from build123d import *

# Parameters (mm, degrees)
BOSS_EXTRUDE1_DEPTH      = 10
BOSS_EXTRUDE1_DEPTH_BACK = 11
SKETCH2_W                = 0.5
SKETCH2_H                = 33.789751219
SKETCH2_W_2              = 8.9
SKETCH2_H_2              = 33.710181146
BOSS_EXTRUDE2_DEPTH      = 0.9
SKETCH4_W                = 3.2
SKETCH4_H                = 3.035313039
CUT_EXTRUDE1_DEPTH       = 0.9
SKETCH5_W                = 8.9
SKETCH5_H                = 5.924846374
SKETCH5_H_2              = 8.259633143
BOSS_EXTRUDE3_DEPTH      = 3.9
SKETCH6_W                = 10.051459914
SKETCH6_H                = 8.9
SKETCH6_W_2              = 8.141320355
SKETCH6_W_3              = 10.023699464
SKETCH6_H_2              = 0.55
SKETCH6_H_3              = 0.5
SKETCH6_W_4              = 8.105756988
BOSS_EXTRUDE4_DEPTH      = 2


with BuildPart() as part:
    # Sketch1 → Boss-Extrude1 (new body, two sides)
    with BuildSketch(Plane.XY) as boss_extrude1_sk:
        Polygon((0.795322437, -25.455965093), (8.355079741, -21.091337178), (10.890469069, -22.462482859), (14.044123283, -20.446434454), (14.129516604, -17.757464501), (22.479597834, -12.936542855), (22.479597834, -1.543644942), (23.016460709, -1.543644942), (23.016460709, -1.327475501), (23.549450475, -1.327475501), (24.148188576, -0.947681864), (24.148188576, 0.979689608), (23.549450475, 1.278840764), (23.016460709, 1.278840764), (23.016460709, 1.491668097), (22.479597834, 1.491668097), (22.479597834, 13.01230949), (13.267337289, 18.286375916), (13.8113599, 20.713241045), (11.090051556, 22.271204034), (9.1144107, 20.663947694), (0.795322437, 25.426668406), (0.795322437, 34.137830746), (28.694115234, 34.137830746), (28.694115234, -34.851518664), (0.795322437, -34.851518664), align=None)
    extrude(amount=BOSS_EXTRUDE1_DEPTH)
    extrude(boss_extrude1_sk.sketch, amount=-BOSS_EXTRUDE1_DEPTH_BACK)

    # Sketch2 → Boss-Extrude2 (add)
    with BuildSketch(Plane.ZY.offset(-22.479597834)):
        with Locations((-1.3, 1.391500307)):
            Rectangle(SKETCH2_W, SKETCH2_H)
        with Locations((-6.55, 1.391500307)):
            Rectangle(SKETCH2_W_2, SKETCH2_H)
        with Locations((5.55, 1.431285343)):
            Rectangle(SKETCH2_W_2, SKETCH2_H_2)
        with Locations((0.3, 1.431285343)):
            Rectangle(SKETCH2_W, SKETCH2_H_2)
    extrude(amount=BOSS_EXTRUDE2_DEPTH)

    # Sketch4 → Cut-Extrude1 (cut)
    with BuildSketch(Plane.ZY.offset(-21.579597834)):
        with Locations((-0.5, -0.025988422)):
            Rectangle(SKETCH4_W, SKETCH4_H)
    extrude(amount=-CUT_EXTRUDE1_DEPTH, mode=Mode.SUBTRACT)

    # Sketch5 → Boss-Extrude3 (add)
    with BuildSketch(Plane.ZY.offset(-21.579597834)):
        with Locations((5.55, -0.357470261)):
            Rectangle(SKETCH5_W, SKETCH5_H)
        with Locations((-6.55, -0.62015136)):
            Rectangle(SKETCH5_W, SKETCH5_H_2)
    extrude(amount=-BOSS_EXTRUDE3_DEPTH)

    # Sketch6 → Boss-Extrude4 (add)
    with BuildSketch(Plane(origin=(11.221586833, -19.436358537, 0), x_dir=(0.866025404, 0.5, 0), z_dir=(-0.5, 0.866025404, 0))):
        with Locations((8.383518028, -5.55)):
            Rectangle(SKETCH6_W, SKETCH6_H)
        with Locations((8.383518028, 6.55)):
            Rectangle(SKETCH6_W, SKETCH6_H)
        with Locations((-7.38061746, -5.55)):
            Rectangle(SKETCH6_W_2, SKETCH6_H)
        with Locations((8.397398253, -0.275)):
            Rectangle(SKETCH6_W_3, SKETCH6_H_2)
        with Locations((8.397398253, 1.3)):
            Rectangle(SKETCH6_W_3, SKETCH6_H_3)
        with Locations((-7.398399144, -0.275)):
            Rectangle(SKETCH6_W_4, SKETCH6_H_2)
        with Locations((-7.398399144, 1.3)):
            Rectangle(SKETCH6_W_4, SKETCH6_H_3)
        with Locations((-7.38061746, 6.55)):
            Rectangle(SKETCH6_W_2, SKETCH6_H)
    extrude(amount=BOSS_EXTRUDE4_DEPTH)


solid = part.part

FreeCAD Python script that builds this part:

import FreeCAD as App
import Part
import Sketcher
Q = App.Units.Quantity


def add_polygon(sketch, points):
    """Adds a closed chain of lines whose ends are joined by coincident constraints."""
    first, n = sketch.GeometryCount, len(points)
    for a, b in zip(points, points[1:] + points[:1]):
        sketch.addGeometry(Part.LineSegment(App.Vector(*a, 0), App.Vector(*b, 0)), False)
    for i in range(n):
        sketch.addConstraint(Sketcher.Constraint("Coincident", first + i, 2, first + (i + 1) % n, 1))

doc = App.newDocument("Part")
params = doc.addObject("Spreadsheet::Sheet", "Params")
for row, (alias, value) in enumerate([
    ("pad1_length", "10 mm"),
    ("pad1_length2", "11 mm"),
    ("sketch2_height", "0.5 mm"),
    ("sketch2_height2", "8.9 mm"),
    ("pad2_length", "0.9 mm"),
    ("sketch3_height", "3.2 mm"),
    ("pocket1_length", "0.9 mm"),
    ("sketch4_height", "8.9 mm"),
    ("pad3_length", "3.9 mm"),
    ("sketch5_height", "8.9 mm"),
    ("sketch5_height2", "0.5 mm"),
    ("sketch5_height3", "0.55 mm"),
    ("pad4_length", "2 mm"),
], start=1):
    params.set(f"A{row}", alias)
    params.set(f"B{row}", "=" + value)
    params.setAlias(f"B{row}", alias)

body = doc.addObject("PartDesign::Body", "Body")

# Sketch on XY plane
sketch1 = doc.addObject("Sketcher::SketchObject", "Sketch")
body.addObject(sketch1)
sketch1.AttachmentSupport = (doc.XY_Plane, [""])
sketch1.MapMode = "FlatFace"
add_polygon(sketch1, [(8.35508, -21.091337), (0.795322, -25.455965), (0.795322, -34.851519), (28.694115, -34.851519), (28.694115, 34.137831), (0.795322, 34.137831), (0.795322, 25.426668), (9.114411, 20.663948), (11.090052, 22.271204), (13.81136, 20.713241), (13.267337, 18.286376), (22.479598, 13.012309), (22.479598, 1.491668), (23.016461, 1.491668), (23.016461, 1.278841), (23.54945, 1.278841), (24.148189, 0.97969), (24.148189, -0.947682), (23.54945, -1.327476), (23.016461, -1.327476), (23.016461, -1.543645), (22.479598, -1.543645), (22.479598, -12.936543), (14.129517, -17.757465), (14.044123, -20.446434), (10.890469, -22.462483)])  # lines 0-25
sketch1.addConstraint(Sketcher.Constraint("Vertical", 1))
sketch1.addConstraint(Sketcher.Constraint("Horizontal", 2))
sketch1.addConstraint(Sketcher.Constraint("Vertical", 3))
sketch1.addConstraint(Sketcher.Constraint("Horizontal", 4))
sketch1.addConstraint(Sketcher.Constraint("Vertical", 5))
sketch1.addConstraint(Sketcher.Constraint("Vertical", 11))
sketch1.addConstraint(Sketcher.Constraint("Horizontal", 12))
sketch1.addConstraint(Sketcher.Constraint("Vertical", 13))
sketch1.addConstraint(Sketcher.Constraint("Horizontal", 14))
sketch1.addConstraint(Sketcher.Constraint("Vertical", 16))
sketch1.addConstraint(Sketcher.Constraint("Horizontal", 18))
sketch1.addConstraint(Sketcher.Constraint("Vertical", 19))
sketch1.addConstraint(Sketcher.Constraint("Horizontal", 20))
sketch1.addConstraint(Sketcher.Constraint("Vertical", 21))
sketch1.addConstraint(Sketcher.Constraint("Parallel", 6, 8))
sketch1.addConstraint(Sketcher.Constraint("Parallel", 8, 10))
sketch1.addConstraint(Sketcher.Constraint("Parallel", 0, 22))
sketch1.addConstraint(Sketcher.Constraint("Vertical", 1, 2, 4, 2))
sketch1.addConstraint(Sketcher.Constraint("Vertical", 14, 2, 17, 2))
sketch1.addConstraint(Sketcher.Constraint("Vertical", 13, 2, 18, 2))
sketch1.addConstraint(Sketcher.Constraint("Vertical", 11, 2, 20, 2))
sketch1.addConstraint(Sketcher.Constraint("Angle", 0, Q("-150 deg")))
sketch1.addConstraint(Sketcher.Constraint("Distance", 25, 2.882402))
sketch1.addConstraint(Sketcher.Constraint("DistanceX", 14, 1, 14, 2, 0.53299))
sketch1.addConstraint(Sketcher.Constraint("DistanceY", 3, 1, 3, 2, 68.989349))
sketch1.addConstraint(Sketcher.Constraint("DistanceY", 11, 2, 11, 1, 11.520641))
sketch1.addConstraint(Sketcher.Constraint("DistanceY", 16, 2, 16, 1, 1.927371))
sketch1.addConstraint(Sketcher.Constraint("DistanceY", 19, 2, 19, 1, 0.216169))
sketch1.addConstraint(Sketcher.Constraint("DistanceX", 8, 2, 12, 2, 9.205101))
sketch1.addConstraint(Sketcher.Constraint("DistanceY", 13, 2, 8, 2, 19.4344))
sketch1.addConstraint(Sketcher.Constraint("DistanceY", 0, 2, 22, 2, 7.698501))
sketch1.addConstraint(Sketcher.Constraint("DistanceX", 0, 2, 23, 2, 13.248801))
sketch1.addConstraint(Sketcher.Constraint("Distance", 24, 3.742992))
sketch1.addConstraint(Sketcher.Constraint("DistanceX", 2, 1, 2, 2, 27.898793))
sketch1.addConstraint(Sketcher.Constraint("DistanceX", 12, 1, 12, 2, 0.536863))
sketch1.addConstraint(Sketcher.Constraint("DistanceY", 1, 2, 1, 1, 9.395554))
sketch1.addConstraint(Sketcher.Constraint("DistanceY", 5, 2, 5, 1, 8.711162))
sketch1.addConstraint(Sketcher.Constraint("DistanceY", 13, 2, 13, 1, 0.212827))
sketch1.addConstraint(Sketcher.Constraint("DistanceY", 21, 2, 21, 1, 11.392898))
sketch1.addConstraint(Sketcher.Constraint("DistanceY", 1, 2, -1, 1, 34.851519))
sketch1.addConstraint(Sketcher.Constraint("DistanceX", -1, 1, 6, 2, 9.114411))
sketch1.addConstraint(Sketcher.Constraint("DistanceX", -1, 1, 7, 2, 11.090052))
sketch1.addConstraint(Sketcher.Constraint("DistanceX", -1, 1, 8, 2, 13.81136))
sketch1.addConstraint(Sketcher.Constraint("DistanceY", -1, 1, 8, 2, 20.713241))
sketch1.addConstraint(Sketcher.Constraint("DistanceX", -1, 1, 15, 2, 24.148189))
sketch1.addConstraint(Sketcher.Constraint("DistanceY", -1, 1, 15, 2, 0.97969))
sketch1.addConstraint(Sketcher.Constraint("DistanceX", -1, 1, 24, 2, 10.890469))
sketch1.addConstraint(Sketcher.Constraint("DistanceX", -1, 1, 25, 2, 8.35508))
sketch1.addConstraint(Sketcher.Constraint("DistanceX", 5, 2, 6, 2, 8.319088))
sketch1.addConstraint(Sketcher.Constraint("DistanceY", 6, 2, 5, 2, 4.762721))
sketch1.addConstraint(Sketcher.Constraint("DistanceY", 9, 2, 7, 2, 3.984828))
sketch1.addConstraint(Sketcher.Constraint("DistanceY", 21, 2, 16, 2, 11.988861))
pad1 = doc.addObject("PartDesign::Pad", "Pad")
body.addObject(pad1)
pad1.Profile = sketch1
pad1.Type = "TwoLengths"
pad1.setExpression("Length", "Params.pad1_length")
pad1.setExpression("Length2", "Params.pad1_length2")

# Sketch on YZ plane
sketch2 = doc.addObject("Sketcher::SketchObject", "Sketch001")
body.addObject(sketch2)
sketch2.AttachmentSupport = (doc.YZ_Plane, [""])
sketch2.MapMode = "FlatFace"
sketch2.AttachmentOffset = App.Placement(App.Vector(0, 0, 22.479598), App.Rotation())
add_polygon(sketch2, [(18.286376, -1.55), (-15.503375, -1.55), (-15.503375, -1.05), (18.286376, -1.05)])  # lines 0-3
add_polygon(sketch2, [(18.286376, -11), (-15.503375, -11), (-15.503375, -2.1), (18.286376, -2.1)])  # lines 4-7
add_polygon(sketch2, [(18.286376, 1.1), (-15.423805, 1.1), (-15.423805, 10), (18.286376, 10)])  # lines 8-11
add_polygon(sketch2, [(18.286376, 0.05), (-15.423805, 0.05), (-15.423805, 0.55), (18.286376, 0.55)])  # lines 12-15
sketch2.addConstraint(Sketcher.Constraint("Horizontal", 0))
sketch2.addConstraint(Sketcher.Constraint("Vertical", 1))
sketch2.addConstraint(Sketcher.Constraint("Horizontal", 2))
sketch2.addConstraint(Sketcher.Constraint("Vertical", 3))
sketch2.addConstraint(Sketcher.Constraint("Horizontal", 4))
sketch2.addConstraint(Sketcher.Constraint("Vertical", 5))
sketch2.addConstraint(Sketcher.Constraint("Horizontal", 6))
sketch2.addConstraint(Sketcher.Constraint("Vertical", 7))
sketch2.addConstraint(Sketcher.Constraint("Horizontal", 8))
sketch2.addConstraint(Sketcher.Constraint("Vertical", 9))
sketch2.addConstraint(Sketcher.Constraint("Horizontal", 10))
sketch2.addConstraint(Sketcher.Constraint("Vertical", 11))
sketch2.addConstraint(Sketcher.Constraint("Horizontal", 12))
sketch2.addConstraint(Sketcher.Constraint("Vertical", 13))
sketch2.addConstraint(Sketcher.Constraint("Horizontal", 14))
sketch2.addConstraint(Sketcher.Constraint("Vertical", 15))
sketch2.addConstraint(Sketcher.Constraint("Vertical", 1, 2, 4, 2))
sketch2.addConstraint(Sketcher.Constraint("Vertical", 3, 2, 6, 2))
sketch2.addConstraint(Sketcher.Constraint("Vertical", 7, 2, 10, 2))
sketch2.addConstraint(Sketcher.Constraint("Vertical", 9, 2, 12, 2))
sketch2.addConstraint(Sketcher.Constraint("Vertical", 11, 2, 14, 2))
sketch2.addConstraint(Sketcher.Constraint("Equal", 7, 9))
sketch2.addConstraint(Sketcher.Constraint("Equal", 3, 13))
sketch2.addConstraint(Sketcher.Constraint("DistanceY", 1, 1, 1, 2, 0.5))
sketch2.addConstraint(Sketcher.Constraint("DistanceY", 5, 1, 5, 2, 8.9))
sketch2.addConstraint(Sketcher.Constraint("DistanceY", 4, 2, -1, 1, 11.0))
sketch2.addConstraint(Sketcher.Constraint("DistanceY", -1, 1, 9, 2, 10.0))
sketch2.addConstraint(Sketcher.Constraint("DistanceY", 1, 2, 12, 2, 1.1))
sketch2.addConstraint(Sketcher.Constraint("DistanceY", 0, 2, -1, 1, 1.55))
sketch2.addConstraint(Sketcher.Constraint("DistanceX", 0, 2, 0, 1, 33.789751))
sketch2.addConstraint(Sketcher.Constraint("DistanceX", 8, 2, 8, 1, 33.710181))
sketch2.addConstraint(Sketcher.Constraint("DistanceX", 0, 2, -1, 1, 15.503375))
sketch2.setExpression("Constraints[39]", "Params.sketch2_height")
sketch2.setExpression("Constraints[40]", "Params.sketch2_height2")
pad2 = doc.addObject("PartDesign::Pad", "Pad001")
body.addObject(pad2)
pad2.Profile = sketch2
pad2.setExpression("Length", "Params.pad2_length")
pad2.Reversed = True

# Sketch on YZ plane
sketch3 = doc.addObject("Sketcher::SketchObject", "Sketch002")
body.addObject(sketch3)
sketch3.AttachmentSupport = (doc.YZ_Plane, [""])
sketch3.MapMode = "FlatFace"
sketch3.AttachmentOffset = App.Placement(App.Vector(0, 0, 21.579598), App.Rotation())
add_polygon(sketch3, [(1.491668, -2.1), (-1.543645, -2.1), (-1.543645, 1.1), (1.491668, 1.1)])  # lines 0-3
sketch3.addConstraint(Sketcher.Constraint("Horizontal", 0))
sketch3.addConstraint(Sketcher.Constraint("Vertical", 1))
sketch3.addConstraint(Sketcher.Constraint("Horizontal", 2))
sketch3.addConstraint(Sketcher.Constraint("Vertical", 3))
sketch3.addConstraint(Sketcher.Constraint("DistanceY", 1, 1, 1, 2, 3.2))
sketch3.addConstraint(Sketcher.Constraint("DistanceY", 0, 2, -1, 1, 2.1))
sketch3.addConstraint(Sketcher.Constraint("DistanceX", 0, 2, 0, 1, 3.035313))
sketch3.addConstraint(Sketcher.Constraint("DistanceX", -1, 1, 2, 2, 1.491668))
sketch3.setExpression("Constraints[8]", "Params.sketch3_height")
pocket1 = doc.addObject("PartDesign::Pocket", "Pocket")
body.addObject(pocket1)
pocket1.Profile = sketch3
pocket1.setExpression("Length", "Params.pocket1_length")
pocket1.Reversed = True

# Sketch on YZ plane
sketch4 = doc.addObject("Sketcher::SketchObject", "Sketch003")
body.addObject(sketch4)
sketch4.AttachmentSupport = (doc.YZ_Plane, [""])
sketch4.MapMode = "FlatFace"
sketch4.AttachmentOffset = App.Placement(App.Vector(0, 0, 21.579598), App.Rotation())
add_polygon(sketch4, [(2.604953, 1.1), (-3.319893, 1.1), (-3.319893, 10), (2.604953, 10)])  # lines 0-3
add_polygon(sketch4, [(3.509665, -11), (-4.749968, -11), (-4.749968, -2.1), (3.509665, -2.1)])  # lines 4-7
sketch4.addConstraint(Sketcher.Constraint("Horizontal", 0))
sketch4.addConstraint(Sketcher.Constraint("Vertical", 1))
sketch4.addConstraint(Sketcher.Constraint("Horizontal", 2))
sketch4.addConstraint(Sketcher.Constraint("Vertical", 3))
sketch4.addConstraint(Sketcher.Constraint("Horizontal", 4))
sketch4.addConstraint(Sketcher.Constraint("Vertical", 5))
sketch4.addConstraint(Sketcher.Constraint("Horizontal", 6))
sketch4.addConstraint(Sketcher.Constraint("Vertical", 7))
sketch4.addConstraint(Sketcher.Constraint("Equal", 3, 5))
sketch4.addConstraint(Sketcher.Constraint("DistanceY", 1, 1, 1, 2, 8.9))
sketch4.addConstraint(Sketcher.Constraint("DistanceY", -1, 1, 1, 2, 10.0))
sketch4.addConstraint(Sketcher.Constraint("DistanceY", 4, 2, -1, 1, 11.0))
sketch4.addConstraint(Sketcher.Constraint("DistanceX", 0, 2, 0, 1, 5.924846))
sketch4.addConstraint(Sketcher.Constraint("DistanceX", 4, 2, 4, 1, 8.259633))
sketch4.addConstraint(Sketcher.Constraint("DistanceX", 4, 2, 3, 2, 7.354921))
sketch4.addConstraint(Sketcher.Constraint("DistanceX", 0, 2, -1, 1, 3.319893))
sketch4.setExpression("Constraints[17]", "Params.sketch4_height")
pad3 = doc.addObject("PartDesign::Pad", "Pad002")
body.addObject(pad3)
pad3.Profile = sketch4
pad3.setExpression("Length", "Params.pad3_length")

# Sketch on an angled plane
sketch5 = doc.addObject("Sketcher::SketchObject", "Sketch004")
body.addObject(sketch5)
sketch5.Placement = App.Placement(App.Vector(11.221587, -19.436359, 0), App.Rotation(App.Vector(0.866025404, 0.5, 0), App.Vector(0, 0, -1), App.Vector(-0.5, 0.866025404, 0), "ZXY"))
add_polygon(sketch5, [(3.357788, -1.1), (3.357788, -10), (13.409248, -10), (13.409248, -1.1)])  # lines 0-3
add_polygon(sketch5, [(3.357788, 11), (3.357788, 2.1), (13.409248, 2.1), (13.409248, 11)])  # lines 4-7
add_polygon(sketch5, [(-11.451278, -1.1), (-11.451278, -10), (-3.309957, -10), (-3.309957, -1.1)])  # lines 8-11
add_polygon(sketch5, [(3.385549, 0), (3.385549, -0.55), (13.409248, -0.55), (13.409248, 0)])  # lines 12-15
add_polygon(sketch5, [(3.385549, 1.55), (3.385549, 1.05), (13.409248, 1.05), (13.409248, 1.55)])  # lines 16-19
add_polygon(sketch5, [(-11.451278, 0), (-11.451278, -0.55), (-3.345521, -0.55), (-3.345521, 0)])  # lines 20-23
add_polygon(sketch5, [(-11.451278, 1.55), (-11.451278, 1.05), (-3.345521, 1.05), (-3.345521, 1.55)])  # lines 24-27
add_polygon(sketch5, [(-11.451278, 11), (-11.451278, 2.1), (-3.309957, 2.1), (-3.309957, 11)])  # lines 28-31
sketch5.addConstraint(Sketcher.Constraint("Vertical", 0))
sketch5.addConstraint(Sketcher.Constraint("Horizontal", 1))
sketch5.addConstraint(Sketcher.Constraint("Vertical", 2))
sketch5.addConstraint(Sketcher.Constraint("Horizontal", 3))
sketch5.addConstraint(Sketcher.Constraint("Vertical", 4))
sketch5.addConstraint(Sketcher.Constraint("Horizontal", 5))
sketch5.addConstraint(Sketcher.Constraint("Vertical", 6))
sketch5.addConstraint(Sketcher.Constraint("Horizontal", 7))
sketch5.addConstraint(Sketcher.Constraint("Vertical", 8))
sketch5.addConstraint(Sketcher.Constraint("Horizontal", 9))
sketch5.addConstraint(Sketcher.Constraint("Vertical", 10))
sketch5.addConstraint(Sketcher.Constraint("Horizontal", 11))
sketch5.addConstraint(Sketcher.Constraint("Vertical", 12))
sketch5.addConstraint(Sketcher.Constraint("Horizontal", 13))
sketch5.addConstraint(Sketcher.Constraint("Vertical", 14))
sketch5.addConstraint(Sketcher.Constraint("Horizontal", 15))
sketch5.addConstraint(Sketcher.Constraint("Vertical", 16))
sketch5.addConstraint(Sketcher.Constraint("Horizontal", 17))
sketch5.addConstraint(Sketcher.Constraint("Vertical", 18))
sketch5.addConstraint(Sketcher.Constraint("Horizontal", 19))
sketch5.addConstraint(Sketcher.Constraint("Vertical", 20))
sketch5.addConstraint(Sketcher.Constraint("Horizontal", 21))
sketch5.addConstraint(Sketcher.Constraint("Vertical", 22))
sketch5.addConstraint(Sketcher.Constraint("Horizontal", 23))
sketch5.addConstraint(Sketcher.Constraint("Vertical", 24))
sketch5.addConstraint(Sketcher.Constraint("Horizontal", 25))
sketch5.addConstraint(Sketcher.Constraint("Vertical", 26))
sketch5.addConstraint(Sketcher.Constraint("Horizontal", 27))
sketch5.addConstraint(Sketcher.Constraint("Vertical", 28))
sketch5.addConstraint(Sketcher.Constraint("Horizontal", 29))
sketch5.addConstraint(Sketcher.Constraint("Vertical", 30))
sketch5.addConstraint(Sketcher.Constraint("Horizontal", 31))
sketch5.addConstraint(Sketcher.Constraint("PointOnObject", 14, 2, -1))
sketch5.addConstraint(Sketcher.Constraint("PointOnObject", 22, 2, -1))
sketch5.addConstraint(Sketcher.Constraint("Horizontal", 1, 2, 8, 2))
sketch5.addConstraint(Sketcher.Constraint("Horizontal", 3, 2, 10, 2))
sketch5.addConstraint(Sketcher.Constraint("Horizontal", 13, 2, 20, 2))
sketch5.addConstraint(Sketcher.Constraint("Horizontal", 17, 2, 24, 2))
sketch5.addConstraint(Sketcher.Constraint("Horizontal", 19, 2, 26, 2))
sketch5.addConstraint(Sketcher.Constraint("Horizontal", 5, 2, 28, 2))
sketch5.addConstraint(Sketcher.Constraint("Horizontal", 7, 2, 30, 2))
sketch5.addConstraint(Sketcher.Constraint("Vertical", 3, 2, 4, 2))
sketch5.addConstraint(Sketcher.Constraint("Vertical", 2, 2, 5, 2))
sketch5.addConstraint(Sketcher.Constraint("Vertical", 6, 2, 13, 2))
sketch5.addConstraint(Sketcher.Constraint("Vertical", 15, 2, 16, 2))
sketch5.addConstraint(Sketcher.Constraint("Vertical", 14, 2, 17, 2))
sketch5.addConstraint(Sketcher.Constraint("Vertical", 11, 2, 20, 2))
sketch5.addConstraint(Sketcher.Constraint("Vertical", 23, 2, 24, 2))
sketch5.addConstraint(Sketcher.Constraint("Vertical", 22, 2, 25, 2))
sketch5.addConstraint(Sketcher.Constraint("Vertical", 27, 2, 28, 2))
sketch5.addConstraint(Sketcher.Constraint("Vertical", 10, 2, 29, 2))
sketch5.addConstraint(Sketcher.Constraint("Equal", 2, 4))
sketch5.addConstraint(Sketcher.Constraint("DistanceY", 0, 2, 0, 1, 8.9))
sketch5.addConstraint(Sketcher.Constraint("DistanceY", 16, 2, 16, 1, 0.5))
sketch5.addConstraint(Sketcher.Constraint("DistanceY", 0, 2, -1, 1, 10.0))
sketch5.addConstraint(Sketcher.Constraint("DistanceY", -1, 1, 6, 2, 11.0))
sketch5.addConstraint(Sketcher.Constraint("DistanceY", 12, 2, 12, 1, 0.55))
sketch5.addConstraint(Sketcher.Constraint("DistanceY", 12, 2, 16, 2, 1.6))
sketch5.addConstraint(Sketcher.Constraint("DistanceX", 13, 1, 13, 2, 10.023699))
sketch5.addConstraint(Sketcher.Constraint("DistanceX", 1, 1, 1, 2, 10.05146))
sketch5.addConstraint(Sketcher.Constraint("DistanceX", 9, 1, 9, 2, 8.14132))
sketch5.addConstraint(Sketcher.Constraint("DistanceX", 21, 1, 21, 2, 8.105757))
sketch5.addConstraint(Sketcher.Constraint("DistanceX", -1, 1, 0, 2, 3.357788))
sketch5.addConstraint(Sketcher.Constraint("DistanceX", 21, 2, -1, 1, 3.345521))
sketch5.setExpression("Constraints[84]", "Params.sketch5_height")
sketch5.setExpression("Constraints[85]", "Params.sketch5_height2")
sketch5.setExpression("Constraints[88]", "Params.sketch5_height3")
pad4 = doc.addObject("PartDesign::Pad", "Pad003")
body.addObject(pad4)
pad4.Profile = sketch5
pad4.setExpression("Length", "Params.pad4_length")

doc.recompute()
